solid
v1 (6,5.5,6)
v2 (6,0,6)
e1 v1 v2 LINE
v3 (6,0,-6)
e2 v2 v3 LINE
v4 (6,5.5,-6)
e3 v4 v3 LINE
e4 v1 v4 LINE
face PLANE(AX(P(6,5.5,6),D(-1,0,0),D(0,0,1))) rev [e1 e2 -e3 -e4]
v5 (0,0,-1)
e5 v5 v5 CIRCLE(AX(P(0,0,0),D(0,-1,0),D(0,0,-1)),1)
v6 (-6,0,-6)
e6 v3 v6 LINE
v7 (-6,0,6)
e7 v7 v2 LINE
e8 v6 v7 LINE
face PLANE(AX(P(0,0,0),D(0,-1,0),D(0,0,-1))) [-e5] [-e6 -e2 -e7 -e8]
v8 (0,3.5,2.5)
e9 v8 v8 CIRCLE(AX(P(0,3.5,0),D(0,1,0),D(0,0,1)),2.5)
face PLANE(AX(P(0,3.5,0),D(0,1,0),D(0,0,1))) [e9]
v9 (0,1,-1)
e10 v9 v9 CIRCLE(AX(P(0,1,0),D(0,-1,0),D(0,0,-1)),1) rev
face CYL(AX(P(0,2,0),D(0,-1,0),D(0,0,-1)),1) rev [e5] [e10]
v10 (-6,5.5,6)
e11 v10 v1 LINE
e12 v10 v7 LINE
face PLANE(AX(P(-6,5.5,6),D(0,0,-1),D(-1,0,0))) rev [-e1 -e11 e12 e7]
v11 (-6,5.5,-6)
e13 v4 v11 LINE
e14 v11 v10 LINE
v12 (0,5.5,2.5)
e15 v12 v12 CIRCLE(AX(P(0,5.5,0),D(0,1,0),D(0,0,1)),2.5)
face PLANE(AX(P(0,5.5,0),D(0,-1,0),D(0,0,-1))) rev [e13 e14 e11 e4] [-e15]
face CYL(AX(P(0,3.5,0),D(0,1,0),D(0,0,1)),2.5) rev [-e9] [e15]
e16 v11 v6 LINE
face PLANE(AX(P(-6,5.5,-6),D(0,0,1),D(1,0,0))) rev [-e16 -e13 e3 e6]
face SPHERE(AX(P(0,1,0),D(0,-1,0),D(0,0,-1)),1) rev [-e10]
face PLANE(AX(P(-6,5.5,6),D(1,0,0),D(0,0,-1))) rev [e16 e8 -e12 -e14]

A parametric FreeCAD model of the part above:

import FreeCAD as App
import Part
import Sketcher
Q = App.Units.Quantity


def edges_at(feature, points):
    """Names of the edges that pass closest to the given points."""
    edges = feature.Shape.Edges
    near = lambda p: min(range(len(edges)), key=lambda i: edges[i].distToShape(Part.Vertex(*p))[0])
    return sorted({f"Edge{near(p) + 1}" for p in points})


def add_polygon(sketch, points):
    """Adds a closed chain of lines whose ends are joined by coincident constraints."""
    first, n = sketch.GeometryCount, len(points)
    for a, b in zip(points, points[1:] + points[:1]):
        sketch.addGeometry(Part.LineSegment(App.Vector(*a, 0), App.Vector(*b, 0)), False)
    for i in range(n):
        sketch.addConstraint(Sketcher.Constraint("Coincident", first + i, 2, first + (i + 1) % n, 1))

doc = App.newDocument("Part")
params = doc.addObject("Spreadsheet::Sheet", "Params")
for row, (alias, value) in enumerate([
    ("sketch1_width", "12 mm"),
    ("pad1_length", "5.5 mm"),
    ("sketch2_diameter", "5 mm"),
    ("pocket1_length", "2 mm"),
    ("sketch3_diameter", "2 mm"),
    ("pocket2_length", "2 mm"),
    ("fillet_radius", "1 mm"),
], start=1):
    params.set(f"A{row}", alias)
    params.set(f"B{row}", "=" + value)
    params.setAlias(f"B{row}", alias)

body = doc.addObject("PartDesign::Body", "Body")

# Sketch on XZ plane
sketch1 = doc.addObject("Sketcher::SketchObject", "Sketch")
body.addObject(sketch1)
sketch1.AttachmentSupport = (doc.XZ_Plane, [""])
sketch1.MapMode = "FlatFace"
add_polygon(sketch1, [(-6, -6), (-6, 6), (6, 6), (6, -6)])  # lines 0-3
sketch1.addConstraint([
    Sketcher.Constraint("Vertical", 0),
    Sketcher.Constraint("Horizontal", 1),
    Sketcher.Constraint("Vertical", 2),
    Sketcher.Constraint("Horizontal", 3),
    Sketcher.Constraint("Symmetric", 0, 2, 2, 2, -1, 1),
    Sketcher.Constraint("Equal", 3, 0),
    Sketcher.Constraint("DistanceX", 1, 1, 1, 2, Q("12 mm")),
])
sketch1.setExpression("Constraints[10]", "Params.sketch1_width")
pad1 = doc.addObject("PartDesign::Pad", "Pad")
body.addObject(pad1)
pad1.Profile = sketch1
pad1.setExpression("Length", "Params.pad1_length")
pad1.Reversed = True

# Sketch on XZ plane
sketch2 = doc.addObject("Sketcher::SketchObject", "Sketch001")
body.addObject(sketch2)
sketch2.AttachmentSupport = (doc.XZ_Plane, [""])
sketch2.MapMode = "FlatFace"
sketch2.AttachmentOffset = App.Placement(App.Vector(0, 0, -5.5), App.Rotation())
sketch2.addGeometry(Part.Circle(App.Vector(0, 0, 0), App.Vector(0, 0, 1), 2.5), False)
sketch2.addConstraint([
    Sketcher.Constraint("Coincident", 0, 3, -1, 1),
    Sketcher.Constraint("Diameter", 0, Q("5 mm")),
])
sketch2.setExpression("Constraints[1]", "Params.sketch2_diameter")
pocket1 = doc.addObject("PartDesign::Pocket", "Pocket")
body.addObject(pocket1)
pocket1.Profile = sketch2
pocket1.setExpression("Length", "Params.pocket1_length")
pocket1.Reversed = True

# Sketch on XZ plane
sketch3 = doc.addObject("Sketcher::SketchObject", "Sketch002")
body.addObject(sketch3)
sketch3.AttachmentSupport = (doc.XZ_Plane, [""])
sketch3.MapMode = "FlatFace"
sketch3.addGeometry(Part.Circle(App.Vector(0, 0, 0), App.Vector(0, 0, 1), 1), False)
sketch3.addConstraint([
    Sketcher.Constraint("Coincident", 0, 3, -1, 1),
    Sketcher.Constraint("Diameter", 0, Q("2 mm")),
])
sketch3.setExpression("Constraints[1]", "Params.sketch3_diameter")
pocket2 = doc.addObject("PartDesign::Pocket", "Pocket001")
body.addObject(pocket2)
pocket2.Profile = sketch3
pocket2.setExpression("Length", "Params.pocket2_length")
doc.recompute()

fillet = doc.addObject("PartDesign::Fillet", "Fillet")
body.addObject(fillet)
fillet.Base = (pocket2, edges_at(pocket2, [(-1, 2, 0)]))
fillet.setExpression("Radius", "Params.fillet_radius")

doc.recompute()
